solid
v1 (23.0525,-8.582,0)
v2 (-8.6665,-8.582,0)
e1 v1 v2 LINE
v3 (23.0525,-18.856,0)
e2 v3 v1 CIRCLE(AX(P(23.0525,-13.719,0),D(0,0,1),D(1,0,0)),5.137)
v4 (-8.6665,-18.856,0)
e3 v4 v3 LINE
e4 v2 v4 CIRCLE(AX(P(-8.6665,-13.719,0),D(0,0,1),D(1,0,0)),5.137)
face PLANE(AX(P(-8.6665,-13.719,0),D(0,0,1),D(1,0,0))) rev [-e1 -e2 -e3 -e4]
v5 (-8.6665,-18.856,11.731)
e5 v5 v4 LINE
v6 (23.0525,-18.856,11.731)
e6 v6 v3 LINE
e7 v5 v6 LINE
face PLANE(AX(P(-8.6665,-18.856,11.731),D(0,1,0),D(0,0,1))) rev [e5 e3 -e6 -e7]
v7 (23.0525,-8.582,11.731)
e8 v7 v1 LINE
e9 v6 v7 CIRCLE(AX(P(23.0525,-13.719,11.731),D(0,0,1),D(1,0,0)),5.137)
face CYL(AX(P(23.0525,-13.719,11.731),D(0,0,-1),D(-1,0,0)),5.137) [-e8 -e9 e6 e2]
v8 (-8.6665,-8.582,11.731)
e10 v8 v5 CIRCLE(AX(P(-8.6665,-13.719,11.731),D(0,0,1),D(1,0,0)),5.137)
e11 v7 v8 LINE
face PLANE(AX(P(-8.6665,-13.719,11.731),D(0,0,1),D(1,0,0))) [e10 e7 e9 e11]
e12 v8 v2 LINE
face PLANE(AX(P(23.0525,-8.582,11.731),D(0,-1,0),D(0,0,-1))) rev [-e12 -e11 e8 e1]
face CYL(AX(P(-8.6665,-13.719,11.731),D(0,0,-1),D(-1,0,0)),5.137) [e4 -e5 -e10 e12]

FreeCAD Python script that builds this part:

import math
import FreeCAD as App
import Part
import Sketcher

V = App.Vector
Q = App.Units.Quantity

doc = App.newDocument("Part")
body = doc.addObject("PartDesign::Body", "Body")

sketch1 = body.newObject("Sketcher::SketchObject", "Sketch")
sketch1.AttachmentSupport = (doc.getObject("XY_Plane"), [""])
sketch1.MapMode = "FlatFace"
sketch1.addGeometry([
    Part.LineSegment(V(-9, -19, 0), V(23, -19, 0)),
    Part.ArcOfCircle(Part.Circle(V(23, -14, 0), V(0, 0, 1), 5), math.radians(-90), math.radians(90)),
    Part.LineSegment(V(23, -9, 0), V(-9, -9, 0)),
    Part.ArcOfCircle(Part.Circle(V(-9, -14, 0), V(0, 0, 1), 5), math.radians(90), math.radians(270)),
], False)
sketch1.addConstraint([
    Sketcher.Constraint("Tangent", 0, 2, 1, 1),
    Sketcher.Constraint("Tangent", 1, 2, 2, 1),
    Sketcher.Constraint("Tangent", 2, 2, 3, 1),
    Sketcher.Constraint("Tangent", 3, 2, 0, 1),
    Sketcher.Constraint("Horizontal", 0),
    Sketcher.Constraint("Horizontal", 2),
    Sketcher.Constraint("Radius", 1, Q("5.137 mm")),
    Sketcher.Constraint("DistanceX", 0, 1, 0, 2, Q("31.719 mm")),
    Sketcher.Constraint("DistanceY", 1, 3, -1, 1, Q("13.719 mm")),
    Sketcher.Constraint("DistanceX", -1, 1, 1, 3, Q("23.0525 mm")),
])
pad1 = body.newObject("PartDesign::Pad", "Pad")
pad1.Profile = sketch1
pad1.Length = 11.731

doc.recompute()
